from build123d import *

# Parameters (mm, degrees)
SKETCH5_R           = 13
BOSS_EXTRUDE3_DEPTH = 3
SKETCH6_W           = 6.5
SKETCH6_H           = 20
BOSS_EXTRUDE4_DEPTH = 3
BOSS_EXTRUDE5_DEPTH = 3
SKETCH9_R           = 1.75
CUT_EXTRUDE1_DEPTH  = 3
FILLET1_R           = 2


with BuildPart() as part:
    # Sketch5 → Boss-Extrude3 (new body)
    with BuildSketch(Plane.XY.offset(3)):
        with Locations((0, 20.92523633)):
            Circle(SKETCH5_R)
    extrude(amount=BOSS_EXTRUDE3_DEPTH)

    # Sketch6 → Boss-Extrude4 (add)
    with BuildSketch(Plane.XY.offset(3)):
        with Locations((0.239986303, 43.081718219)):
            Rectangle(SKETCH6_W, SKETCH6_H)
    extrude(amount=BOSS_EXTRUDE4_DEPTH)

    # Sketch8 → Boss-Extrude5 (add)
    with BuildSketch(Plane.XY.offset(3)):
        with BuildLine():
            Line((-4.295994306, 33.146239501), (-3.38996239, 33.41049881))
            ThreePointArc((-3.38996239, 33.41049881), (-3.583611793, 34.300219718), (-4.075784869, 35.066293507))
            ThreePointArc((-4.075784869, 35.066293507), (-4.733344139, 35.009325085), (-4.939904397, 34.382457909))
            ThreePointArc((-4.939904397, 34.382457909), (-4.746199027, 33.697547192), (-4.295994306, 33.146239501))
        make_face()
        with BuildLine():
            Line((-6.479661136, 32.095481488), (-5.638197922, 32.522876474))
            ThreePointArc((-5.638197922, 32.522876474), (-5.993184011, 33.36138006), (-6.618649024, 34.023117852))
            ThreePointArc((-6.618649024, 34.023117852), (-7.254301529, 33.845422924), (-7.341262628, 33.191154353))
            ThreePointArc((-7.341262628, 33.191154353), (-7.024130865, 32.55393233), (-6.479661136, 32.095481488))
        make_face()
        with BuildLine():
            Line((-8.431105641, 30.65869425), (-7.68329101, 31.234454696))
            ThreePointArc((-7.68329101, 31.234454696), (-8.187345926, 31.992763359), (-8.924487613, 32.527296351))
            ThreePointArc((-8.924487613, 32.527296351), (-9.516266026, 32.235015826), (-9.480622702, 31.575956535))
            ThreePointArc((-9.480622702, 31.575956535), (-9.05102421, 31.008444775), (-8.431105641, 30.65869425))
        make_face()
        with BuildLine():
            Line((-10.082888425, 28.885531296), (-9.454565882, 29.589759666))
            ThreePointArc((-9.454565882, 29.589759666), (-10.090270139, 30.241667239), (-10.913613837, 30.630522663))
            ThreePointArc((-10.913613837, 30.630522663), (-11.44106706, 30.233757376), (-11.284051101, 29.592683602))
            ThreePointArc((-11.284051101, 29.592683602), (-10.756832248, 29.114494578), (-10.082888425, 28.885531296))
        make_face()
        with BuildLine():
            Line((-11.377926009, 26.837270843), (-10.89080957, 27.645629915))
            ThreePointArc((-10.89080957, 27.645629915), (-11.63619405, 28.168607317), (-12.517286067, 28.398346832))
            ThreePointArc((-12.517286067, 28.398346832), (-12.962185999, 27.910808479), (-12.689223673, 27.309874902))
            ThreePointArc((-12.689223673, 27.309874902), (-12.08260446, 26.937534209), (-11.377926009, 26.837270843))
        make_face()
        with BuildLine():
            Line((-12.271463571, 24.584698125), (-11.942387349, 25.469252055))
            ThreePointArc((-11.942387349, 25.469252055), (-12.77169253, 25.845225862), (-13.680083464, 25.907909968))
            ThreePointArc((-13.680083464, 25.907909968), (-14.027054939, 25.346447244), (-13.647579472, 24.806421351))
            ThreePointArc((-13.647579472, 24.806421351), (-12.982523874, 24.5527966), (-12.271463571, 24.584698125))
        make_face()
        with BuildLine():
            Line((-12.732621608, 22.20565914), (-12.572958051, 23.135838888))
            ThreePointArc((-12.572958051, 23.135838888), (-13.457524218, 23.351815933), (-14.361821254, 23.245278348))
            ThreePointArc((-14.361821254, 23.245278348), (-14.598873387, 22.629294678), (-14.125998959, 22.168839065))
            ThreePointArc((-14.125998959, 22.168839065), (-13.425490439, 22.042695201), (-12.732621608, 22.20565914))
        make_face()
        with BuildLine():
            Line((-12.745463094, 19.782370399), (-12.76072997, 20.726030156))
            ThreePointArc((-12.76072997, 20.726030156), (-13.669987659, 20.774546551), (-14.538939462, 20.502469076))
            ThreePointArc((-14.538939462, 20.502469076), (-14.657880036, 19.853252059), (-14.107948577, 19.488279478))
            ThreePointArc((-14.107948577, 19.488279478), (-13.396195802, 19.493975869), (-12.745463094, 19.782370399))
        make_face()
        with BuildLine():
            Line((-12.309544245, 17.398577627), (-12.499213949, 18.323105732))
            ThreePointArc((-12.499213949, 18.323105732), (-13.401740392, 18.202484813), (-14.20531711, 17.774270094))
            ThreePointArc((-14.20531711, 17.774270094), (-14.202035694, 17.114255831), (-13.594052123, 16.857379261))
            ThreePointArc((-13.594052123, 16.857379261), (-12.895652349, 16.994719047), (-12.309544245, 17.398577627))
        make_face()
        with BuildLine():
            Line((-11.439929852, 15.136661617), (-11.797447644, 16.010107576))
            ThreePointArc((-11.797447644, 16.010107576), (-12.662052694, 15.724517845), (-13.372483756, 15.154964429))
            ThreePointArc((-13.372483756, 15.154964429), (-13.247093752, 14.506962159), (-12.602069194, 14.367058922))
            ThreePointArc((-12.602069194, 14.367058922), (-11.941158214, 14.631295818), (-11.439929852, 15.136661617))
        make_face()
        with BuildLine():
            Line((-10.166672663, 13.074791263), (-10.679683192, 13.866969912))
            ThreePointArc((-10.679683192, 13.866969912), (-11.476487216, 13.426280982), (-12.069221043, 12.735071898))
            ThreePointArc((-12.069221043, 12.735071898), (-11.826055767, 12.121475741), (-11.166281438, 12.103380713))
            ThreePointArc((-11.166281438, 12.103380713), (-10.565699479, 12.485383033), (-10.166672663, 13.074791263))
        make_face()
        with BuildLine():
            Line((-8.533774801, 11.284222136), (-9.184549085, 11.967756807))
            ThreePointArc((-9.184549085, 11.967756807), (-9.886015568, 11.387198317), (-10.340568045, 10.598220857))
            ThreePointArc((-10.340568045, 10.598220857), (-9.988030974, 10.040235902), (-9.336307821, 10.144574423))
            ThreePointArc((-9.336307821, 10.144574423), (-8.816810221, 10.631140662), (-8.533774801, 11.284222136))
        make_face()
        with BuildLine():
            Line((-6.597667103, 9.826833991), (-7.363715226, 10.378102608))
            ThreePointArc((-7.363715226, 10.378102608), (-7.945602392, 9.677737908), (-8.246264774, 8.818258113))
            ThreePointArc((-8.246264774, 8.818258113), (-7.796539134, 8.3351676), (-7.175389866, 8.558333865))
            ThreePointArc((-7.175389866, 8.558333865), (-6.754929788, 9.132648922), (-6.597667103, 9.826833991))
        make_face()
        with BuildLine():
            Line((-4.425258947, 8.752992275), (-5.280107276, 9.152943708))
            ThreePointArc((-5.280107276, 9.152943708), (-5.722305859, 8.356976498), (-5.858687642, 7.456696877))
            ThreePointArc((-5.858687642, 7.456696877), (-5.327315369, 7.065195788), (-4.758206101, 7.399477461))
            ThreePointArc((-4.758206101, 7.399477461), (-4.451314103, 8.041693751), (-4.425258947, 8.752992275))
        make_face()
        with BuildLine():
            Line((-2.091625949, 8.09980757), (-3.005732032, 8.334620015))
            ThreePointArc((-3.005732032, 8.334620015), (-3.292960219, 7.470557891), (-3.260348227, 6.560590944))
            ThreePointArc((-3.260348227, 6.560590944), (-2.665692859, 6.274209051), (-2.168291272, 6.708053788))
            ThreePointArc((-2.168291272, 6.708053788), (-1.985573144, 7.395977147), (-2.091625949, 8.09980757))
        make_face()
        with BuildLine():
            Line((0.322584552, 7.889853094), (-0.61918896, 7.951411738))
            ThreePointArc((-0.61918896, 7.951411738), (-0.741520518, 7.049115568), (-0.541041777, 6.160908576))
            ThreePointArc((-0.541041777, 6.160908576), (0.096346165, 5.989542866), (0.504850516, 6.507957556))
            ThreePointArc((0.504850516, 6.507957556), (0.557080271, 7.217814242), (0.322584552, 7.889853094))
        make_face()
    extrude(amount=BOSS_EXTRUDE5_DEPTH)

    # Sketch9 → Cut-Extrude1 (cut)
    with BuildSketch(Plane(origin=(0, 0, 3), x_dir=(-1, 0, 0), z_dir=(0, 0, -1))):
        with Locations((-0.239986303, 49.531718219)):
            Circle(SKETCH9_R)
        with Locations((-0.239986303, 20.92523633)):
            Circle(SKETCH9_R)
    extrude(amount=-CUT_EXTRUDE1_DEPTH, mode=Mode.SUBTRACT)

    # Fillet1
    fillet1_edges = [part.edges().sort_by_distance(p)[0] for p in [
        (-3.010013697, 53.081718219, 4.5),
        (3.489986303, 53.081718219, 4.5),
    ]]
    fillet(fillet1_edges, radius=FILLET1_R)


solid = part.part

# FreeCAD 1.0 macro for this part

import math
import FreeCAD as App
import Part
import Sketcher
from FreeCAD import Vector
Q = App.Units.Quantity


def edges_at(feature, points):
    """Names of the edges that pass closest to the given points."""
    edges = feature.Shape.Edges
    near = lambda p: min(range(len(edges)), key=lambda i: edges[i].distToShape(Part.Vertex(*p))[0])
    return sorted({f"Edge{near(p) + 1}" for p in points})


def add_polygon(sketch, points):
    """Adds a closed chain of lines whose ends are joined by coincident constraints."""
    first, n = sketch.GeometryCount, len(points)
    for a, b in zip(points, points[1:] + points[:1]):
        sketch.addGeometry(Part.LineSegment(App.Vector(*a, 0), App.Vector(*b, 0)), False)
    for i in range(n):
        sketch.addConstraint(Sketcher.Constraint("Coincident", first + i, 2, first + (i + 1) % n, 1))

doc = App.newDocument("Part")
body = doc.addObject("PartDesign::Body", "Body")

sketch1 = doc.addObject("Sketcher::SketchObject", "Sketch")
body.addObject(sketch1)
sketch1.AttachmentSupport = (doc.XY_Plane, [""])
sketch1.MapMode = "FlatFace"
sketch1.AttachmentOffset = App.Placement(Vector(0, 0, 3), App.Rotation())
sketch1.addGeometry(Part.Circle(Vector(0, 21, 0), Vector(0, 0, 1), 13), False)
sketch1.addConstraint(Sketcher.Constraint("PointOnObject", 0, 3, -2))
sketch1.addConstraint(Sketcher.Constraint("Diameter", 0, Q("26 mm")))
sketch1.addConstraint(Sketcher.Constraint("DistanceY", -1, 1, 0, 3, Q("20.925236 mm")))
pad1 = doc.addObject("PartDesign::Pad", "Pad")
body.addObject(pad1)
pad1.Profile = sketch1
pad1.Length = 3

sketch2 = doc.addObject("Sketcher::SketchObject", "Sketch001")
body.addObject(sketch2)
sketch2.AttachmentSupport = (doc.XY_Plane, [""])
sketch2.MapMode = "FlatFace"
sketch2.AttachmentOffset = App.Placement(Vector(0, 0, 3), App.Rotation())
add_polygon(sketch2, [(-3, 53), (-3, 33), (3, 33), (3, 53)])
sketch2.addConstraint(Sketcher.Constraint("Vertical", 0))
sketch2.addConstraint(Sketcher.Constraint("Horizontal", 1))
sketch2.addConstraint(Sketcher.Constraint("Vertical", 2))
sketch2.addConstraint(Sketcher.Constraint("Horizontal", 3))
sketch2.addConstraint(Sketcher.Constraint("DistanceY", 0, 2, 0, 1, Q("20 mm")))
sketch2.addConstraint(Sketcher.Constraint("DistanceX", 1, 1, 1, 2, Q("6.5 mm")))
sketch2.addConstraint(Sketcher.Constraint("DistanceY", -1, 1, 0, 2, Q("33.081718 mm")))
sketch2.addConstraint(Sketcher.Constraint("DistanceX", 0, 2, -1, 1, Q("3.010014 mm")))
pad2 = doc.addObject("PartDesign::Pad", "Pad001")
body.addObject(pad2)
pad2.Profile = sketch2
pad2.Length = 3

sketch3 = doc.addObject("Sketcher::SketchObject", "Sketch002")
body.addObject(sketch3)
sketch3.AttachmentSupport = (doc.XY_Plane, [""])
sketch3.MapMode = "FlatFace"
sketch3.AttachmentOffset = App.Placement(Vector(0, 0, 3), App.Rotation())
sketch3.addGeometry(Part.LineSegment(Vector(-4.3, 33.1, 0), Vector(-3.4, 33.4, 0)), False)
sketch3.addGeometry(Part.ArcOfCircle(Part.Circle(Vector(-6, 33.3, 0), Vector(0, 0, 1), 2.6), math.radians(2), math.radians(43)), False)
sketch3.addGeometry(Part.ArcOfCircle(Part.Circle(Vector(-4.4, 34.5, 0), Vector(0, 0, 1), 0.6), math.radians(62), math.radians(195)), False)
sketch3.addGeometry(Part.ArcOfCircle(Part.Circle(Vector(-3.2, 34.5, 0), Vector(0, 0, 1), 1.8), math.radians(-176), math.radians(-129)), False)
sketch3.addGeometry(Part.LineSegment(Vector(-6.5, 32.1, 0), Vector(-5.6, 32.5, 0)), False)
sketch3.addGeometry(Part.ArcOfCircle(Part.Circle(Vector(-8.1, 32, 0), Vector(0, 0, 1), 2.6), math.radians(13), math.radians(54)), False)
sketch3.addGeometry(Part.ArcOfCircle(Part.Circle(Vector(-6.8, 33.5, 0), Vector(0, 0, 1), 0.6), math.radians(72), math.radians(206)), False)
sketch3.addGeometry(Part.ArcOfCircle(Part.Circle(Vector(-5.6, 33.6, 0), Vector(0, 0, 1), 1.8), math.radians(-165), math.radians(-118)), False)
sketch3.addGeometry(Part.LineSegment(Vector(-8.4, 30.7, 0), Vector(-7.7, 31.2, 0)), False)
sketch3.addGeometry(Part.ArcOfCircle(Part.Circle(Vector(-10, 30.2, 0), Vector(0, 0, 1), 2.6), math.radians(23), math.radians(64)), False)
sketch3.addGeometry(Part.ArcOfCircle(Part.Circle(Vector(-9, 31.9, 0), Vector(0, 0, 1), 0.6), math.radians(83), math.radians(217)), False)
sketch3.addGeometry(Part.ArcOfCircle(Part.Circle(Vector(-7.9, 32.3, 0), Vector(0, 0, 1), 1.8), math.radians(-155), math.radians(-108)), False)
sketch3.addGeometry(Part.LineSegment(Vector(-10.1, 28.9, 0), Vector(-9.5, 29.6, 0)), False)
sketch3.addGeometry(Part.ArcOfCircle(Part.Circle(Vector(-11.6, 28.2, 0), Vector(0, 0, 1), 2.6), math.radians(34), math.radians(75)), False)
sketch3.addGeometry(Part.ArcOfCircle(Part.Circle(Vector(-10.9, 30, 0), Vector(0, 0, 1), 0.6), math.radians(94), math.radians(227)), False)
sketch3.addGeometry(Part.ArcOfCircle(Part.Circle(Vector(-9.9, 30.6, 0), Vector(0, 0, 1), 1.8), math.radians(-144), math.radians(-97)), False)
sketch3.addGeometry(Part.LineSegment(Vector(-11.4, 26.8, 0), Vector(-10.9, 27.6, 0)), False)
sketch3.addGeometry(Part.ArcOfCircle(Part.Circle(Vector(-12.7, 25.8, 0), Vector(0, 0, 1), 2.6), math.radians(45), math.radians(86)), False)
sketch3.addGeometry(Part.ArcOfCircle(Part.Circle(Vector(-12.4, 27.8, 0), Vector(0, 0, 1), 0.6), math.radians(104), math.radians(238)), False)
sketch3.addGeometry(Part.ArcOfCircle(Part.Circle(Vector(-11.5, 28.6, 0), Vector(0, 0, 1), 1.8), math.radians(-133), math.radians(-86)), False)
sketch3.addGeometry(Part.LineSegment(Vector(-12.3, 24.6, 0), Vector(-11.9, 25.5, 0)), False)
sketch3.addGeometry(Part.ArcOfCircle(Part.Circle(Vector(-13.4, 23.4, 0), Vector(0, 0, 1), 2.6), math.radians(55), math.radians(96)), False)
sketch3.addGeometry(Part.ArcOfCircle(Part.Circle(Vector(-13.4, 25.4, 0), Vector(0, 0, 1), 0.6), math.radians(115), math.radians(249)), False)
sketch3.addGeometry(Part.ArcOfCircle(Part.Circle(Vector(-12.7, 26.3, 0), Vector(0, 0, 1), 1.8), math.radians(-123), math.radians(-76)), False)
sketch3.addGeometry(Part.LineSegment(Vector(-12.7, 22.2, 0), Vector(-12.6, 23.1, 0)), False)
sketch3.addGeometry(Part.ArcOfCircle(Part.Circle(Vector(-13.6, 20.8, 0), Vector(0, 0, 1), 2.6), math.radians(66), math.radians(107)), False)
sketch3.addGeometry(Part.ArcOfCircle(Part.Circle(Vector(-14, 22.8, 0), Vector(0, 0, 1), 0.6), math.radians(126), math.radians(259)), False)
sketch3.addGeometry(Part.ArcOfCircle(Part.Circle(Vector(-13.5, 23.8, 0), Vector(0, 0, 1), 1.8), math.radians(-112), math.radians(-65)), False)
sketch3.addGeometry(Part.LineSegment(Vector(-12.7, 19.8, 0), Vector(-12.8, 20.7, 0)), False)
sketch3.addGeometry(Part.ArcOfCircle(Part.Circle(Vector(-13.3, 18.2, 0), Vector(0, 0, 1), 2.6), math.radians(77), math.radians(118)), False)
sketch3.addGeometry(Part.ArcOfCircle(Part.Circle(Vector(-14.1, 20.1, 0), Vector(0, 0, 1), 0.6), math.radians(136), math.radians(270)), False)
sketch3.addGeometry(Part.ArcOfCircle(Part.Circle(Vector(-13.8, 21.2, 0), Vector(0, 0, 1), 1.8), math.radians(-101), math.radians(-54)), False)
sketch3.addGeometry(Part.LineSegment(Vector(-12.3, 17.4, 0), Vector(-12.5, 18.3, 0)), False)
sketch3.addGeometry(Part.ArcOfCircle(Part.Circle(Vector(-12.6, 15.8, 0), Vector(0, 0, 1), 2.6), math.radians(87), math.radians(128)), False)
sketch3.addGeometry(Part.ArcOfCircle(Part.Circle(Vector(-13.7, 17.4, 0), Vector(0, 0, 1), 0.6), math.radians(147), math.radians(281)), False)
sketch3.addGeometry(Part.ArcOfCircle(Part.Circle(Vector(-13.6, 18.6, 0), Vector(0, 0, 1), 1.8), math.radians(-91), math.radians(-44)), False)
sketch3.addGeometry(Part.LineSegment(Vector(-11.4, 15.1, 0), Vector(-11.8, 16, 0)), False)
sketch3.addGeometry(Part.ArcOfCircle(Part.Circle(Vector(-11.4, 13.5, 0), Vector(0, 0, 1), 2.6), math.radians(98), math.radians(139)), False)
sketch3.addGeometry(Part.ArcOfCircle(Part.Circle(Vector(-12.8, 14.9, 0), Vector(0, 0, 1), 0.6), math.radians(158), math.radians(291)), False)
sketch3.addGeometry(Part.ArcOfCircle(Part.Circle(Vector(-12.9, 16.1, 0), Vector(0, 0, 1), 1.8), math.radians(-80), math.radians(-33)), False)
sketch3.addGeometry(Part.LineSegment(Vector(-10.2, 13.1, 0), Vector(-10.7, 13.9, 0)), False)
sketch3.addGeometry(Part.ArcOfCircle(Part.Circle(Vector(-9.9, 11.4, 0), Vector(0, 0, 1), 2.6), math.radians(109), math.radians(150)), False)
sketch3.addGeometry(Part.ArcOfCircle(Part.Circle(Vector(-11.5, 12.6, 0), Vector(0, 0, 1), 0.6), math.radians(168), math.radians(302)), False)
sketch3.addGeometry(Part.ArcOfCircle(Part.Circle(Vector(-11.8, 13.7, 0), Vector(0, 0, 1), 1.8), math.radians(-69), math.radians(-22)), False)
sketch3.addGeometry(Part.LineSegment(Vector(-8.5, 11.3, 0), Vector(-9.2, 12, 0)), False)
sketch3.addGeometry(Part.ArcOfCircle(Part.Circle(Vector(-7.9, 9.7, 0), Vector(0, 0, 1), 2.6), math.radians(119), math.radians(160)), False)
sketch3.addGeometry(Part.ArcOfCircle(Part.Circle(Vector(-9.7, 10.6, 0), Vector(0, 0, 1), 0.6), math.radians(179), math.radians(313)), False)
sketch3.addGeometry(Part.ArcOfCircle(Part.Circle(Vector(-10.2, 11.6, 0), Vector(0, 0, 1), 1.8), math.radians(-59), math.radians(-12)), False)
sketch3.addGeometry(Part.LineSegment(Vector(-6.6, 9.8, 0), Vector(-7.4, 10.4, 0)), False)
sketch3.addGeometry(Part.ArcOfCircle(Part.Circle(Vector(-5.7, 8.4, 0), Vector(0, 0, 1), 2.6), math.radians(130), math.radians(171)), False)
sketch3.addGeometry(Part.ArcOfCircle(Part.Circle(Vector(-7.7, 8.9, 0), Vector(0, 0, 1), 0.6), math.radians(-170), math.radians(-37)), False)
sketch3.addGeometry(Part.ArcOfCircle(Part.Circle(Vector(-8.3, 9.9, 0), Vector(0, 0, 1), 1.8), math.radians(-48), math.radians(-1)), False)
sketch3.addGeometry(Part.LineSegment(Vector(-4.4, 8.8, 0), Vector(-5.3, 9.2, 0)), False)
sketch3.addGeometry(Part.ArcOfCircle(Part.Circle(Vector(-3.3, 7.5, 0), Vector(0, 0, 1), 2.6), math.radians(141), math.radians(182)), False)
sketch3.addGeometry(Part.ArcOfCircle(Part.Circle(Vector(-5.3, 7.7, 0), Vector(0, 0, 1), 0.6), math.radians(-160), math.radians(-26)), False)
sketch3.addGeometry(Part.ArcOfCircle(Part.Circle(Vector(-6.2, 8.5, 0), Vector(0, 0, 1), 1.8), math.radians(-37), math.radians(10)), False)
sketch3.addGeometry(Part.LineSegment(Vector(-2.1, 8.1, 0), Vector(-3, 8.3, 0)), False)
sketch3.addGeometry(Part.ArcOfCircle(Part.Circle(Vector(-0.8, 7.1, 0), Vector(0, 0, 1), 2.6), math.radians(151), math.radians(192)), False)
sketch3.addGeometry(Part.ArcOfCircle(Part.Circle(Vector(-2.7, 6.9, 0), Vector(0, 0, 1), 0.6), math.radians(-149), math.radians(-15)), False)
sketch3.addGeometry(Part.ArcOfCircle(Part.Circle(Vector(-3.7, 7.5, 0), Vector(0, 0, 1), 1.8), math.radians(-27), math.radians(20)), False)
sketch3.addGeometry(Part.LineSegment(Vector(0.3, 7.9, 0), Vector(-0.6, 8, 0)), False)
sketch3.addGeometry(Part.ArcOfCircle(Part.Circle(Vector(1.8, 7.2, 0), Vector(0, 0, 1), 2.6), math.radians(162), math.radians(203)), False)
sketch3.addGeometry(Part.ArcOfCircle(Part.Circle(Vector(-0.1, 6.6, 0), Vector(0, 0, 1), 0.6), math.radians(-138), math.radians(-5)), False)
sketch3.addGeometry(Part.ArcOfCircle(Part.Circle(Vector(-1.2, 7, 0), Vector(0, 0, 1), 1.8), math.radians(-16), math.radians(31)), False)
sketch3.addConstraint(Sketcher.Constraint("Coincident", 0, 2, 1, 1))
sketch3.addConstraint(Sketcher.Constraint("Coincident", 1, 2, 2, 1))
sketch3.addConstraint(Sketcher.Constraint("Coincident", 2, 2, 3, 1))
sketch3.addConstraint(Sketcher.Constraint("Coincident", 3, 2, 0, 1))
sketch3.addConstraint(Sketcher.Constraint("Coincident", 4, 2, 5, 1))
sketch3.addConstraint(Sketcher.Constraint("Coincident", 5, 2, 6, 1))
sketch3.addConstraint(Sketcher.Constraint("Coincident", 6, 2, 7, 1))
sketch3.addConstraint(Sketcher.Constraint("Coincident", 7, 2, 4, 1))
sketch3.addConstraint(Sketcher.Constraint("Coincident", 8, 2, 9, 1))
sketch3.addConstraint(Sketcher.Constraint("Coincident", 9, 2, 10, 1))
sketch3.addConstraint(Sketcher.Constraint("Coincident", 10, 2, 11, 1))
sketch3.addConstraint(Sketcher.Constraint("Coincident", 11, 2, 8, 1))
sketch3.addConstraint(Sketcher.Constraint("Coincident", 12, 2, 13, 1))
sketch3.addConstraint(Sketcher.Constraint("Coincident", 13, 2, 14, 1))
sketch3.addConstraint(Sketcher.Constraint("Coincident", 14, 2, 15, 1))
sketch3.addConstraint(Sketcher.Constraint("Coincident", 15, 2, 12, 1))
sketch3.addConstraint(Sketcher.Constraint("Coincident", 16, 2, 17, 1))
sketch3.addConstraint(Sketcher.Constraint("Coincident", 17, 2, 18, 1))
sketch3.addConstraint(Sketcher.Constraint("Coincident", 18, 2, 19, 1))
sketch3.addConstraint(Sketcher.Constraint("Coincident", 19, 2, 16, 1))
sketch3.addConstraint(Sketcher.Constraint("Coincident", 20, 2, 21, 1))
sketch3.addConstraint(Sketcher.Constraint("Coincident", 21, 2, 22, 1))
sketch3.addConstraint(Sketcher.Constraint("Coincident", 22, 2, 23, 1))
sketch3.addConstraint(Sketcher.Constraint("Coincident", 23, 2, 20, 1))
sketch3.addConstraint(Sketcher.Constraint("Coincident", 24, 2, 25, 1))
sketch3.addConstraint(Sketcher.Constraint("Coincident", 25, 2, 26, 1))
sketch3.addConstraint(Sketcher.Constraint("Coincident", 26, 2, 27, 1))
sketch3.addConstraint(Sketcher.Constraint("Coincident", 27, 2, 24, 1))
sketch3.addConstraint(Sketcher.Constraint("Coincident", 28, 2, 29, 1))
sketch3.addConstraint(Sketcher.Constraint("Coincident", 29, 2, 30, 1))
sketch3.addConstraint(Sketcher.Constraint("Coincident", 30, 2, 31, 1))
sketch3.addConstraint(Sketcher.Constraint("Coincident", 31, 2, 28, 1))
sketch3.addConstraint(Sketcher.Constraint("Coincident", 32, 2, 33, 1))
sketch3.addConstraint(Sketcher.Constraint("Coincident", 33, 2, 34, 1))
sketch3.addConstraint(Sketcher.Constraint("Coincident", 34, 2, 35, 1))
sketch3.addConstraint(Sketcher.Constraint("Coincident", 35, 2, 32, 1))
sketch3.addConstraint(Sketcher.Constraint("Coincident", 36, 2, 37, 1))
sketch3.addConstraint(Sketcher.Constraint("Coincident", 37, 2, 38, 1))
sketch3.addConstraint(Sketcher.Constraint("Coincident", 38, 2, 39, 1))
sketch3.addConstraint(Sketcher.Constraint("Coincident", 39, 2, 36, 1))
sketch3.addConstraint(Sketcher.Constraint("Coincident", 40, 2, 41, 1))
sketch3.addConstraint(Sketcher.Constraint("Coincident", 41, 2, 42, 1))
sketch3.addConstraint(Sketcher.Constraint("Coincident", 42, 2, 43, 1))
sketch3.addConstraint(Sketcher.Constraint("Coincident", 43, 2, 40, 1))
sketch3.addConstraint(Sketcher.Constraint("Coincident", 44, 2, 45, 1))
sketch3.addConstraint(Sketcher.Constraint("Coincident", 45, 2, 46, 1))
sketch3.addConstraint(Sketcher.Constraint("Coincident", 46, 2, 47, 1))
sketch3.addConstraint(Sketcher.Constraint("Coincident", 47, 2, 44, 1))
sketch3.addConstraint(Sketcher.Constraint("Coincident", 48, 2, 49, 1))
sketch3.addConstraint(Sketcher.Constraint("Coincident", 49, 2, 50, 1))
sketch3.addConstraint(Sketcher.Constraint("Coincident", 50, 2, 51, 1))
sketch3.addConstraint(Sketcher.Constraint("Coincident", 51, 2, 48, 1))
sketch3.addConstraint(Sketcher.Constraint("Coincident", 52, 2, 53, 1))
sketch3.addConstraint(Sketcher.Constraint("Coincident", 53, 2, 54, 1))
sketch3.addConstraint(Sketcher.Constraint("Coincident", 54, 2, 55, 1))
sketch3.addConstraint(Sketcher.Constraint("Coincident", 55, 2, 52, 1))
sketch3.addConstraint(Sketcher.Constraint("Coincident", 56, 2, 57, 1))
sketch3.addConstraint(Sketcher.Constraint("Coincident", 57, 2, 58, 1))
sketch3.addConstraint(Sketcher.Constraint("Coincident", 58, 2, 59, 1))
sketch3.addConstraint(Sketcher.Constraint("Coincident", 59, 2, 56, 1))
sketch3.addConstraint(Sketcher.Constraint("Coincident", 60, 2, 61, 1))
sketch3.addConstraint(Sketcher.Constraint("Coincident", 61, 2, 62, 1))
sketch3.addConstraint(Sketcher.Constraint("Coincident", 62, 2, 63, 1))
sketch3.addConstraint(Sketcher.Constraint("Coincident", 63, 2, 60, 1))
sketch3.addConstraint(Sketcher.Constraint("Equal", 1, 5))
sketch3.addConstraint(Sketcher.Constraint("Equal", 2, 6))
sketch3.addConstraint(Sketcher.Constraint("Equal", 3, 7))
sketch3.addConstraint(Sketcher.Constraint("Equal", 5, 9))
sketch3.addConstraint(Sketcher.Constraint("Equal", 6, 10))
sketch3.addConstraint(Sketcher.Constraint("Equal", 7, 11))
sketch3.addConstraint(Sketcher.Constraint("Equal", 9, 13))
sketch3.addConstraint(Sketcher.Constraint("Equal", 10, 14))
sketch3.addConstraint(Sketcher.Constraint("Equal", 11, 15))
sketch3.addConstraint(Sketcher.Constraint("Equal", 13, 17))
sketch3.addConstraint(Sketcher.Constraint("Equal", 14, 18))
sketch3.addConstraint(Sketcher.Constraint("Equal", 15, 19))
sketch3.addConstraint(Sketcher.Constraint("Equal", 17, 21))
sketch3.addConstraint(Sketcher.Constraint("Equal", 18, 22))
sketch3.addConstraint(Sketcher.Constraint("Equal", 19, 23))
sketch3.addConstraint(Sketcher.Constraint("Equal", 21, 25))
sketch3.addConstraint(Sketcher.Constraint("Equal", 22, 26))
sketch3.addConstraint(Sketcher.Constraint("Equal", 23, 27))
sketch3.addConstraint(Sketcher.Constraint("Equal", 25, 29))
sketch3.addConstraint(Sketcher.Constraint("Equal", 26, 30))
sketch3.addConstraint(Sketcher.Constraint("Equal", 27, 31))
sketch3.addConstraint(Sketcher.Constraint("Equal", 29, 33))
sketch3.addConstraint(Sketcher.Constraint("Equal", 30, 34))
sketch3.addConstraint(Sketcher.Constraint("Equal", 31, 35))
sketch3.addConstraint(Sketcher.Constraint("Equal", 33, 37))
sketch3.addConstraint(Sketcher.Constraint("Equal", 34, 38))
sketch3.addConstraint(Sketcher.Constraint("Equal", 35, 39))
sketch3.addConstraint(Sketcher.Constraint("Equal", 37, 41))
sketch3.addConstraint(Sketcher.Constraint("Equal", 38, 42))
sketch3.addConstraint(Sketcher.Constraint("Equal", 39, 43))
sketch3.addConstraint(Sketcher.Constraint("Equal", 41, 45))
sketch3.addConstraint(Sketcher.Constraint("Equal", 42, 46))
sketch3.addConstraint(Sketcher.Constraint("Equal", 43, 47))
sketch3.addConstraint(Sketcher.Constraint("Equal", 45, 49))
sketch3.addConstraint(Sketcher.Constraint("Equal", 46, 50))
sketch3.addConstraint(Sketcher.Constraint("Equal", 47, 51))
sketch3.addConstraint(Sketcher.Constraint("Equal", 49, 53))
sketch3.addConstraint(Sketcher.Constraint("Equal", 50, 54))
sketch3.addConstraint(Sketcher.Constraint("Equal", 51, 55))
sketch3.addConstraint(Sketcher.Constraint("Equal", 53, 57))
sketch3.addConstraint(Sketcher.Constraint("Equal", 54, 58))
sketch3.addConstraint(Sketcher.Constraint("Equal", 55, 59))
sketch3.addConstraint(Sketcher.Constraint("Equal", 57, 61))
sketch3.addConstraint(Sketcher.Constraint("Equal", 58, 62))
sketch3.addConstraint(Sketcher.Constraint("Equal", 59, 63))
sketch3.addConstraint(Sketcher.Constraint("Equal", 0, 4))
sketch3.addConstraint(Sketcher.Constraint("Equal", 4, 8))
sketch3.addConstraint(Sketcher.Constraint("Equal", 8, 12))
sketch3.addConstraint(Sketcher.Constraint("Equal", 12, 16))
sketch3.addConstraint(Sketcher.Constraint("Equal", 16, 20))
sketch3.addConstraint(Sketcher.Constraint("Equal", 20, 24))
sketch3.addConstraint(Sketcher.Constraint("Equal", 24, 28))
sketch3.addConstraint(Sketcher.Constraint("Equal", 28, 32))
sketch3.addConstraint(Sketcher.Constraint("Equal", 32, 36))
sketch3.addConstraint(Sketcher.Constraint("Equal", 36, 40))
sketch3.addConstraint(Sketcher.Constraint("Equal", 40, 44))
sketch3.addConstraint(Sketcher.Constraint("Equal", 44, 48))
sketch3.addConstraint(Sketcher.Constraint("Equal", 48, 52))
sketch3.addConstraint(Sketcher.Constraint("Equal", 52, 56))
sketch3.addConstraint(Sketcher.Constraint("Equal", 56, 60))
sketch3.addConstraint(Sketcher.Constraint("Radius", 1, Q("2.565949 mm")))
sketch3.addConstraint(Sketcher.Constraint("Radius", 2, Q("0.599411 mm")))
sketch3.addConstraint(Sketcher.Constraint("Radius", 3, Q("1.751761 mm")))
sketch3.addConstraint(Sketcher.Constraint("DistanceY", -1, 1, 61, 3, Q("7.161001 mm")))
sketch3.addConstraint(Sketcher.Constraint("DistanceX", 26, 2, -1, 1, Q("14.125999 mm")))
sketch3.addConstraint(Sketcher.Constraint("DistanceX", 31, 3, -1, 1, Q("13.765799 mm")))
sketch3.addConstraint(Sketcher.Constraint("DistanceY", -1, 1, 31, 3, Q("21.206301 mm")))
sketch3.addConstraint(Sketcher.Constraint("DistanceY", -1, 1, 37, 3, Q("13.469499 mm")))
sketch3.addConstraint(Sketcher.Constraint("DistanceY", -1, 1, 46, 3, Q("10.586499 mm")))
sketch3.addConstraint(Sketcher.Constraint("DistanceY", -1, 1, 0, 2, Q("33.410499 mm")))
sketch3.addConstraint(Sketcher.Constraint("DistanceY", -1, 1, 23, 2, Q("24.584698 mm")))
sketch3.addConstraint(Sketcher.Constraint("DistanceY", -1, 1, 1, 3, Q("33.31831 mm")))
sketch3.addConstraint(Sketcher.Constraint("DistanceY", -1, 1, 2, 3, Q("34.539291 mm")))
sketch3.addConstraint(Sketcher.Constraint("DistanceX", 3, 3, -1, 1, Q("3.192562 mm")))
sketch3.addConstraint(Sketcher.Constraint("DistanceY", -1, 1, 3, 3, Q("34.506792 mm")))
sketch3.addConstraint(Sketcher.Constraint("DistanceX", 6, 3, -1, 1, Q("6.801759 mm")))
sketch3.addConstraint(Sketcher.Constraint("DistanceY", -1, 1, 6, 3, Q("33.45236 mm")))
sketch3.addConstraint(Sketcher.Constraint("DistanceX", 9, 3, -1, 1, Q("10.03834 mm")))
sketch3.addConstraint(Sketcher.Constraint("DistanceY", -1, 1, 9, 3, Q("30.215711 mm")))
sketch3.addConstraint(Sketcher.Constraint("DistanceX", 10, 3, -1, 1, Q("8.998789 mm")))
sketch3.addConstraint(Sketcher.Constraint("DistanceY", -1, 1, 10, 3, Q("31.932509 mm")))
sketch3.addConstraint(Sketcher.Constraint("DistanceX", 11, 3, -1, 1, Q("7.89824 mm")))
sketch3.addConstraint(Sketcher.Constraint("DistanceY", -1, 1, 13, 3, Q("28.152711 mm")))
sketch3.addConstraint(Sketcher.Constraint("DistanceX", 14, 3, -1, 1, Q("10.876539 mm")))
sketch3.addConstraint(Sketcher.Constraint("DistanceY", -1, 1, 14, 3, Q("30.03226 mm")))
sketch3.addConstraint(Sketcher.Constraint("DistanceY", -1, 1, 17, 3, Q("25.83994 mm")))
sketch3.addConstraint(Sketcher.Constraint("DistanceX", 19, 3, -1, 1, Q("11.488652 mm")))
sketch3.addConstraint(Sketcher.Constraint("DistanceY", -1, 1, 19, 3, Q("28.585529 mm")))
sketch3.addConstraint(Sketcher.Constraint("DistanceX", 21, 3, -1, 1, Q("13.39973 mm")))
sketch3.addConstraint(Sketcher.Constraint("DistanceX", 23, 3, -1, 1, Q("12.70387 mm")))
sketch3.addConstraint(Sketcher.Constraint("DistanceX", 25, 3, -1, 1, Q("13.614211 mm")))
sketch3.addConstraint(Sketcher.Constraint("DistanceX", 26, 3, -1, 1, Q("14.013349 mm")))
sketch3.addConstraint(Sketcher.Constraint("DistanceY", -1, 1, 26, 3, Q("22.757569 mm")))
sketch3.addConstraint(Sketcher.Constraint("DistanceX", 29, 3, -1, 1, Q("13.34991 mm")))
sketch3.addConstraint(Sketcher.Constraint("DistanceY", -1, 1, 29, 3, Q("18.228639 mm")))
sketch3.addConstraint(Sketcher.Constraint("DistanceX", 33, 3, -1, 1, Q("12.615959 mm")))
sketch3.addConstraint(Sketcher.Constraint("DistanceY", -1, 1, 34, 3, Q("17.446751 mm")))
sketch3.addConstraint(Sketcher.Constraint("DistanceX", 39, 3, -1, 1, Q("12.908369 mm")))
sketch3.addConstraint(Sketcher.Constraint("DistanceX", 41, 3, -1, 1, Q("9.85592 mm")))
sketch3.addConstraint(Sketcher.Constraint("DistanceX", 42, 3, -1, 1, Q("11.48245 mm")))
sketch3.addConstraint(Sketcher.Constraint("DistanceX", 47, 3, -1, 1, Q("10.249081 mm")))
sketch3.addConstraint(Sketcher.Constraint("DistanceY", -1, 1, 49, 3, Q("8.414169 mm")))
sketch3.addConstraint(Sketcher.Constraint("DistanceY", -1, 1, 51, 3, Q("9.858711 mm")))
sketch3.addConstraint(Sketcher.Constraint("DistanceY", -1, 1, 53, 3, Q("7.528608 mm")))
sketch3.addConstraint(Sketcher.Constraint("DistanceX", 54, 3, -1, 1, Q("5.296191 mm")))
sketch3.addConstraint(Sketcher.Constraint("DistanceY", -1, 1, 55, 3, Q("8.46013 mm")))
sketch3.addConstraint(Sketcher.Constraint("DistanceY", -1, 1, 58, 3, Q("6.868229 mm")))
sketch3.addConstraint(Sketcher.Constraint("DistanceX", -1, 1, 61, 3, Q("1.821988 mm")))
sketch3.addConstraint(Sketcher.Constraint("DistanceX", 62, 3, -1, 1, Q("0.09243 mm")))
sketch3.addConstraint(Sketcher.Constraint("DistanceY", -1, 1, 62, 3, Q("6.558451 mm")))
sketch3.addConstraint(Sketcher.Constraint("DistanceX", 63, 3, -1, 1, Q("1.179639 mm")))
sketch3.addConstraint(Sketcher.Constraint("DistanceY", -1, 1, 63, 3, Q("6.988749 mm")))
sketch3.addConstraint(Sketcher.Constraint("DistanceY", -1, 1, 3, 2, Q("33.14624 mm")))
sketch3.addConstraint(Sketcher.Constraint("DistanceX", 5, 2, -1, 1, Q("6.618649 mm")))
sketch3.addConstraint(Sketcher.Constraint("DistanceX", 7, 2, -1, 1, Q("6.479661 mm")))
sketch3.addConstraint(Sketcher.Constraint("DistanceY", -1, 1, 7, 2, Q("32.095481 mm")))
sketch3.addConstraint(Sketcher.Constraint("DistanceX", 8, 2, -1, 1, Q("7.683291 mm")))
sketch3.addConstraint(Sketcher.Constraint("DistanceY", -1, 1, 12, 2, Q("29.58976 mm")))
sketch3.addConstraint(Sketcher.Constraint("DistanceX", 14, 2, -1, 1, Q("11.284051 mm")))
sketch3.addConstraint(Sketcher.Constraint("DistanceX", 15, 2, -1, 1, Q("10.082888 mm")))
sketch3.addConstraint(Sketcher.Constraint("DistanceY", -1, 1, 15, 2, Q("28.885531 mm")))
sketch3.addConstraint(Sketcher.Constraint("DistanceX", 16, 2, -1, 1, Q("10.89081 mm")))
sketch3.addConstraint(Sketcher.Constraint("DistanceY", -1, 1, 16, 2, Q("27.64563 mm")))
sketch3.addConstraint(Sketcher.Constraint("DistanceY", -1, 1, 19, 2, Q("26.837271 mm")))
sketch3.addConstraint(Sketcher.Constraint("DistanceY", -1, 1, 21, 2, Q("25.90791 mm")))
sketch3.addConstraint(Sketcher.Constraint("DistanceX", 22, 2, -1, 1, Q("13.647579 mm")))
sketch3.addConstraint(Sketcher.Constraint("DistanceY", -1, 1, 22, 2, Q("24.806421 mm")))
sketch3.addConstraint(Sketcher.Constraint("DistanceX", 24, 2, -1, 1, Q("12.572958 mm")))
sketch3.addConstraint(Sketcher.Constraint("DistanceY", -1, 1, 24, 2, Q("23.135839 mm")))
sketch3.addConstraint(Sketcher.Constraint("DistanceX", 27, 2, -1, 1, Q("12.732622 mm")))
sketch3.addConstraint(Sketcher.Constraint("DistanceX", 28, 2, -1, 1, Q("12.76073 mm")))
sketch3.addConstraint(Sketcher.Constraint("DistanceX", 29, 2, -1, 1, Q("14.538939 mm")))
sketch3.addConstraint(Sketcher.Constraint("DistanceX", 30, 2, -1, 1, Q("14.107949 mm")))
sketch3.addConstraint(Sketcher.Constraint("DistanceY", -1, 1, 33, 2, Q("17.77427 mm")))
sketch3.addConstraint(Sketcher.Constraint("DistanceY", -1, 1, 34, 2, Q("16.857379 mm")))
sketch3.addConstraint(Sketcher.Constraint("DistanceX", 38, 2, -1, 1, Q("12.602069 mm")))
sketch3.addConstraint(Sketcher.Constraint("DistanceY", -1, 1, 38, 2, Q("14.367059 mm")))
sketch3.addConstraint(Sketcher.Constraint("DistanceX", 39, 2, -1, 1, Q("11.43993 mm")))
sketch3.addConstraint(Sketcher.Constraint("DistanceY", -1, 1, 40, 2, Q("13.86697 mm")))
sketch3.addConstraint(Sketcher.Constraint("DistanceX", 41, 2, -1, 1, Q("12.069221 mm")))
sketch3.addConstraint(Sketcher.Constraint("DistanceY", -1, 1, 41, 2, Q("12.735072 mm")))
sketch3.addConstraint(Sketcher.Constraint("DistanceX", 42, 2, -1, 1, Q("11.166281 mm")))
sketch3.addConstraint(Sketcher.Constraint("DistanceY", -1, 1, 43, 2, Q("13.074791 mm")))
sketch3.addConstraint(Sketcher.Constraint("DistanceX", 44, 2, -1, 1, Q("9.184549 mm")))
sketch3.addConstraint(Sketcher.Constraint("DistanceX", 45, 2, -1, 1, Q("10.340568 mm")))
sketch3.addConstraint(Sketcher.Constraint("DistanceY", -1, 1, 45, 2, Q("10.598221 mm")))
sketch3.addConstraint(Sketcher.Constraint("DistanceY", -1, 1, 49, 2, Q("8.818258 mm")))
sketch3.addConstraint(Sketcher.Constraint("DistanceX", 50, 2, -1, 1, Q("7.17539 mm")))
sketch3.addConstraint(Sketcher.Constraint("DistanceX", 55, 2, -1, 1, Q("4.425259 mm")))
sketch3.addConstraint(Sketcher.Constraint("DistanceY", -1, 1, 56, 2, Q("8.33462 mm")))
sketch3.addConstraint(Sketcher.Constraint("DistanceX", 57, 2, -1, 1, Q("3.260348 mm")))
sketch3.addConstraint(Sketcher.Constraint("DistanceY", -1, 1, 57, 2, Q("6.560591 mm")))
sketch3.addConstraint(Sketcher.Constraint("DistanceX", 58, 2, -1, 1, Q("2.168291 mm")))
sketch3.addConstraint(Sketcher.Constraint("DistanceX", 60, 2, -1, 1, Q("0.619189 mm")))
sketch3.addConstraint(Sketcher.Constraint("DistanceX", 2, 3, -1, 1, Q("4.361375 mm")))
sketch3.addConstraint(Sketcher.Constraint("DistanceX", 5, 3, -1, 1, Q("8.141118 mm")))
sketch3.addConstraint(Sketcher.Constraint("DistanceX", 7, 3, -1, 1, Q("5.647126 mm")))
sketch3.addConstraint(Sketcher.Constraint("DistanceY", -1, 1, 11, 3, Q("32.327442 mm")))
sketch3.addConstraint(Sketcher.Constraint("DistanceX", 18, 3, -1, 1, Q("12.370117 mm")))
sketch3.addConstraint(Sketcher.Constraint("DistanceY", -1, 1, 18, 3, Q("27.817284 mm")))
sketch3.addConstraint(Sketcher.Constraint("DistanceY", -1, 1, 21, 3, Q("23.357322 mm")))
sketch3.addConstraint(Sketcher.Constraint("DistanceY", -1, 1, 33, 3, Q("15.759814 mm")))
sketch3.addConstraint(Sketcher.Constraint("DistanceX", 35, 3, -1, 1, Q("13.575812 mm")))
sketch3.addConstraint(Sketcher.Constraint("DistanceX", 37, 3, -1, 1, Q("11.437723 mm")))
sketch3.addConstraint(Sketcher.Constraint("DistanceX", 38, 3, -1, 1, Q("12.818516 mm")))
sketch3.addConstraint(Sketcher.Constraint("DistanceX", 45, 3, -1, 1, Q("7.925216 mm")))
sketch3.addConstraint(Sketcher.Constraint("DistanceY", -1, 1, 47, 3, Q("11.639737 mm")))
sketch3.addConstraint(Sketcher.Constraint("DistanceX", 49, 3, -1, 1, Q("5.712334 mm")))
sketch3.addConstraint(Sketcher.Constraint("DistanceX", 50, 3, -1, 1, Q("7.655154 mm")))
sketch3.addConstraint(Sketcher.Constraint("DistanceX", 53, 3, -1, 1, Q("3.293746 mm")))
sketch3.addConstraint(Sketcher.Constraint("DistanceY", -1, 1, 54, 3, Q("7.663798 mm")))
sketch3.addConstraint(Sketcher.Constraint("DistanceX", 55, 3, -1, 1, Q("6.152366 mm")))
sketch3.addConstraint(Sketcher.Constraint("DistanceX", 57, 3, -1, 1, Q("0.753038 mm")))
sketch3.addConstraint(Sketcher.Constraint("DistanceX", 59, 3, -1, 1, Q("3.734682 mm")))
sketch3.addConstraint(Sketcher.Constraint("DistanceX", 32, 2, -1, 1, Q("12.499214 mm")))
sketch3.addConstraint(Sketcher.Constraint("DistanceX", 48, 2, -1, 1, Q("7.363715 mm")))
pad3 = doc.addObject("PartDesign::Pad", "Pad002")
body.addObject(pad3)
pad3.Profile = sketch3
pad3.Length = 3

sketch4 = doc.addObject("Sketcher::SketchObject", "Sketch003")
body.addObject(sketch4)
sketch4.AttachmentSupport = (doc.XY_Plane, [""])
sketch4.MapMode = "FlatFace"
sketch4.AttachmentOffset = App.Placement(Vector(0, 0, 3), App.Rotation())
sketch4.addGeometry(Part.Circle(Vector(0.2, 49.5, 0), Vector(0, 0, 1), 1.8), False)
sketch4.addGeometry(Part.Circle(Vector(0.2, 20.9, 0), Vector(0, 0, 1), 1.8), False)
sketch4.addConstraint(Sketcher.Constraint("Equal", 0, 1))
sketch4.addConstraint(Sketcher.Constraint("Vertical", 0, 3, 1, 3))
sketch4.addConstraint(Sketcher.Constraint("Diameter", 0, Q("3.5 mm")))
sketch4.addConstraint(Sketcher.Constraint("DistanceY", -1, 1, 0, 3, Q("49.531718 mm")))
sketch4.addConstraint(Sketcher.Constraint("DistanceY", 1, 3, 0, 3, Q("28.606482 mm")))
sketch4.addConstraint(Sketcher.Constraint("DistanceX", -1, 1, 0, 3, Q("0.239986 mm")))
pocket1 = doc.addObject("PartDesign::Pocket", "Pocket")
body.addObject(pocket1)
pocket1.Profile = sketch4
pocket1.Length = 3
pocket1.Reversed = True
doc.recompute()

fillet = doc.addObject("PartDesign::Fillet", "Fillet")
body.addObject(fillet)
fillet.Base = (pocket1, edges_at(pocket1, [(-3.01, 53.082, 4.5), (3.49, 53.082, 4.5)]))
fillet.Radius = 2

doc.recompute()
